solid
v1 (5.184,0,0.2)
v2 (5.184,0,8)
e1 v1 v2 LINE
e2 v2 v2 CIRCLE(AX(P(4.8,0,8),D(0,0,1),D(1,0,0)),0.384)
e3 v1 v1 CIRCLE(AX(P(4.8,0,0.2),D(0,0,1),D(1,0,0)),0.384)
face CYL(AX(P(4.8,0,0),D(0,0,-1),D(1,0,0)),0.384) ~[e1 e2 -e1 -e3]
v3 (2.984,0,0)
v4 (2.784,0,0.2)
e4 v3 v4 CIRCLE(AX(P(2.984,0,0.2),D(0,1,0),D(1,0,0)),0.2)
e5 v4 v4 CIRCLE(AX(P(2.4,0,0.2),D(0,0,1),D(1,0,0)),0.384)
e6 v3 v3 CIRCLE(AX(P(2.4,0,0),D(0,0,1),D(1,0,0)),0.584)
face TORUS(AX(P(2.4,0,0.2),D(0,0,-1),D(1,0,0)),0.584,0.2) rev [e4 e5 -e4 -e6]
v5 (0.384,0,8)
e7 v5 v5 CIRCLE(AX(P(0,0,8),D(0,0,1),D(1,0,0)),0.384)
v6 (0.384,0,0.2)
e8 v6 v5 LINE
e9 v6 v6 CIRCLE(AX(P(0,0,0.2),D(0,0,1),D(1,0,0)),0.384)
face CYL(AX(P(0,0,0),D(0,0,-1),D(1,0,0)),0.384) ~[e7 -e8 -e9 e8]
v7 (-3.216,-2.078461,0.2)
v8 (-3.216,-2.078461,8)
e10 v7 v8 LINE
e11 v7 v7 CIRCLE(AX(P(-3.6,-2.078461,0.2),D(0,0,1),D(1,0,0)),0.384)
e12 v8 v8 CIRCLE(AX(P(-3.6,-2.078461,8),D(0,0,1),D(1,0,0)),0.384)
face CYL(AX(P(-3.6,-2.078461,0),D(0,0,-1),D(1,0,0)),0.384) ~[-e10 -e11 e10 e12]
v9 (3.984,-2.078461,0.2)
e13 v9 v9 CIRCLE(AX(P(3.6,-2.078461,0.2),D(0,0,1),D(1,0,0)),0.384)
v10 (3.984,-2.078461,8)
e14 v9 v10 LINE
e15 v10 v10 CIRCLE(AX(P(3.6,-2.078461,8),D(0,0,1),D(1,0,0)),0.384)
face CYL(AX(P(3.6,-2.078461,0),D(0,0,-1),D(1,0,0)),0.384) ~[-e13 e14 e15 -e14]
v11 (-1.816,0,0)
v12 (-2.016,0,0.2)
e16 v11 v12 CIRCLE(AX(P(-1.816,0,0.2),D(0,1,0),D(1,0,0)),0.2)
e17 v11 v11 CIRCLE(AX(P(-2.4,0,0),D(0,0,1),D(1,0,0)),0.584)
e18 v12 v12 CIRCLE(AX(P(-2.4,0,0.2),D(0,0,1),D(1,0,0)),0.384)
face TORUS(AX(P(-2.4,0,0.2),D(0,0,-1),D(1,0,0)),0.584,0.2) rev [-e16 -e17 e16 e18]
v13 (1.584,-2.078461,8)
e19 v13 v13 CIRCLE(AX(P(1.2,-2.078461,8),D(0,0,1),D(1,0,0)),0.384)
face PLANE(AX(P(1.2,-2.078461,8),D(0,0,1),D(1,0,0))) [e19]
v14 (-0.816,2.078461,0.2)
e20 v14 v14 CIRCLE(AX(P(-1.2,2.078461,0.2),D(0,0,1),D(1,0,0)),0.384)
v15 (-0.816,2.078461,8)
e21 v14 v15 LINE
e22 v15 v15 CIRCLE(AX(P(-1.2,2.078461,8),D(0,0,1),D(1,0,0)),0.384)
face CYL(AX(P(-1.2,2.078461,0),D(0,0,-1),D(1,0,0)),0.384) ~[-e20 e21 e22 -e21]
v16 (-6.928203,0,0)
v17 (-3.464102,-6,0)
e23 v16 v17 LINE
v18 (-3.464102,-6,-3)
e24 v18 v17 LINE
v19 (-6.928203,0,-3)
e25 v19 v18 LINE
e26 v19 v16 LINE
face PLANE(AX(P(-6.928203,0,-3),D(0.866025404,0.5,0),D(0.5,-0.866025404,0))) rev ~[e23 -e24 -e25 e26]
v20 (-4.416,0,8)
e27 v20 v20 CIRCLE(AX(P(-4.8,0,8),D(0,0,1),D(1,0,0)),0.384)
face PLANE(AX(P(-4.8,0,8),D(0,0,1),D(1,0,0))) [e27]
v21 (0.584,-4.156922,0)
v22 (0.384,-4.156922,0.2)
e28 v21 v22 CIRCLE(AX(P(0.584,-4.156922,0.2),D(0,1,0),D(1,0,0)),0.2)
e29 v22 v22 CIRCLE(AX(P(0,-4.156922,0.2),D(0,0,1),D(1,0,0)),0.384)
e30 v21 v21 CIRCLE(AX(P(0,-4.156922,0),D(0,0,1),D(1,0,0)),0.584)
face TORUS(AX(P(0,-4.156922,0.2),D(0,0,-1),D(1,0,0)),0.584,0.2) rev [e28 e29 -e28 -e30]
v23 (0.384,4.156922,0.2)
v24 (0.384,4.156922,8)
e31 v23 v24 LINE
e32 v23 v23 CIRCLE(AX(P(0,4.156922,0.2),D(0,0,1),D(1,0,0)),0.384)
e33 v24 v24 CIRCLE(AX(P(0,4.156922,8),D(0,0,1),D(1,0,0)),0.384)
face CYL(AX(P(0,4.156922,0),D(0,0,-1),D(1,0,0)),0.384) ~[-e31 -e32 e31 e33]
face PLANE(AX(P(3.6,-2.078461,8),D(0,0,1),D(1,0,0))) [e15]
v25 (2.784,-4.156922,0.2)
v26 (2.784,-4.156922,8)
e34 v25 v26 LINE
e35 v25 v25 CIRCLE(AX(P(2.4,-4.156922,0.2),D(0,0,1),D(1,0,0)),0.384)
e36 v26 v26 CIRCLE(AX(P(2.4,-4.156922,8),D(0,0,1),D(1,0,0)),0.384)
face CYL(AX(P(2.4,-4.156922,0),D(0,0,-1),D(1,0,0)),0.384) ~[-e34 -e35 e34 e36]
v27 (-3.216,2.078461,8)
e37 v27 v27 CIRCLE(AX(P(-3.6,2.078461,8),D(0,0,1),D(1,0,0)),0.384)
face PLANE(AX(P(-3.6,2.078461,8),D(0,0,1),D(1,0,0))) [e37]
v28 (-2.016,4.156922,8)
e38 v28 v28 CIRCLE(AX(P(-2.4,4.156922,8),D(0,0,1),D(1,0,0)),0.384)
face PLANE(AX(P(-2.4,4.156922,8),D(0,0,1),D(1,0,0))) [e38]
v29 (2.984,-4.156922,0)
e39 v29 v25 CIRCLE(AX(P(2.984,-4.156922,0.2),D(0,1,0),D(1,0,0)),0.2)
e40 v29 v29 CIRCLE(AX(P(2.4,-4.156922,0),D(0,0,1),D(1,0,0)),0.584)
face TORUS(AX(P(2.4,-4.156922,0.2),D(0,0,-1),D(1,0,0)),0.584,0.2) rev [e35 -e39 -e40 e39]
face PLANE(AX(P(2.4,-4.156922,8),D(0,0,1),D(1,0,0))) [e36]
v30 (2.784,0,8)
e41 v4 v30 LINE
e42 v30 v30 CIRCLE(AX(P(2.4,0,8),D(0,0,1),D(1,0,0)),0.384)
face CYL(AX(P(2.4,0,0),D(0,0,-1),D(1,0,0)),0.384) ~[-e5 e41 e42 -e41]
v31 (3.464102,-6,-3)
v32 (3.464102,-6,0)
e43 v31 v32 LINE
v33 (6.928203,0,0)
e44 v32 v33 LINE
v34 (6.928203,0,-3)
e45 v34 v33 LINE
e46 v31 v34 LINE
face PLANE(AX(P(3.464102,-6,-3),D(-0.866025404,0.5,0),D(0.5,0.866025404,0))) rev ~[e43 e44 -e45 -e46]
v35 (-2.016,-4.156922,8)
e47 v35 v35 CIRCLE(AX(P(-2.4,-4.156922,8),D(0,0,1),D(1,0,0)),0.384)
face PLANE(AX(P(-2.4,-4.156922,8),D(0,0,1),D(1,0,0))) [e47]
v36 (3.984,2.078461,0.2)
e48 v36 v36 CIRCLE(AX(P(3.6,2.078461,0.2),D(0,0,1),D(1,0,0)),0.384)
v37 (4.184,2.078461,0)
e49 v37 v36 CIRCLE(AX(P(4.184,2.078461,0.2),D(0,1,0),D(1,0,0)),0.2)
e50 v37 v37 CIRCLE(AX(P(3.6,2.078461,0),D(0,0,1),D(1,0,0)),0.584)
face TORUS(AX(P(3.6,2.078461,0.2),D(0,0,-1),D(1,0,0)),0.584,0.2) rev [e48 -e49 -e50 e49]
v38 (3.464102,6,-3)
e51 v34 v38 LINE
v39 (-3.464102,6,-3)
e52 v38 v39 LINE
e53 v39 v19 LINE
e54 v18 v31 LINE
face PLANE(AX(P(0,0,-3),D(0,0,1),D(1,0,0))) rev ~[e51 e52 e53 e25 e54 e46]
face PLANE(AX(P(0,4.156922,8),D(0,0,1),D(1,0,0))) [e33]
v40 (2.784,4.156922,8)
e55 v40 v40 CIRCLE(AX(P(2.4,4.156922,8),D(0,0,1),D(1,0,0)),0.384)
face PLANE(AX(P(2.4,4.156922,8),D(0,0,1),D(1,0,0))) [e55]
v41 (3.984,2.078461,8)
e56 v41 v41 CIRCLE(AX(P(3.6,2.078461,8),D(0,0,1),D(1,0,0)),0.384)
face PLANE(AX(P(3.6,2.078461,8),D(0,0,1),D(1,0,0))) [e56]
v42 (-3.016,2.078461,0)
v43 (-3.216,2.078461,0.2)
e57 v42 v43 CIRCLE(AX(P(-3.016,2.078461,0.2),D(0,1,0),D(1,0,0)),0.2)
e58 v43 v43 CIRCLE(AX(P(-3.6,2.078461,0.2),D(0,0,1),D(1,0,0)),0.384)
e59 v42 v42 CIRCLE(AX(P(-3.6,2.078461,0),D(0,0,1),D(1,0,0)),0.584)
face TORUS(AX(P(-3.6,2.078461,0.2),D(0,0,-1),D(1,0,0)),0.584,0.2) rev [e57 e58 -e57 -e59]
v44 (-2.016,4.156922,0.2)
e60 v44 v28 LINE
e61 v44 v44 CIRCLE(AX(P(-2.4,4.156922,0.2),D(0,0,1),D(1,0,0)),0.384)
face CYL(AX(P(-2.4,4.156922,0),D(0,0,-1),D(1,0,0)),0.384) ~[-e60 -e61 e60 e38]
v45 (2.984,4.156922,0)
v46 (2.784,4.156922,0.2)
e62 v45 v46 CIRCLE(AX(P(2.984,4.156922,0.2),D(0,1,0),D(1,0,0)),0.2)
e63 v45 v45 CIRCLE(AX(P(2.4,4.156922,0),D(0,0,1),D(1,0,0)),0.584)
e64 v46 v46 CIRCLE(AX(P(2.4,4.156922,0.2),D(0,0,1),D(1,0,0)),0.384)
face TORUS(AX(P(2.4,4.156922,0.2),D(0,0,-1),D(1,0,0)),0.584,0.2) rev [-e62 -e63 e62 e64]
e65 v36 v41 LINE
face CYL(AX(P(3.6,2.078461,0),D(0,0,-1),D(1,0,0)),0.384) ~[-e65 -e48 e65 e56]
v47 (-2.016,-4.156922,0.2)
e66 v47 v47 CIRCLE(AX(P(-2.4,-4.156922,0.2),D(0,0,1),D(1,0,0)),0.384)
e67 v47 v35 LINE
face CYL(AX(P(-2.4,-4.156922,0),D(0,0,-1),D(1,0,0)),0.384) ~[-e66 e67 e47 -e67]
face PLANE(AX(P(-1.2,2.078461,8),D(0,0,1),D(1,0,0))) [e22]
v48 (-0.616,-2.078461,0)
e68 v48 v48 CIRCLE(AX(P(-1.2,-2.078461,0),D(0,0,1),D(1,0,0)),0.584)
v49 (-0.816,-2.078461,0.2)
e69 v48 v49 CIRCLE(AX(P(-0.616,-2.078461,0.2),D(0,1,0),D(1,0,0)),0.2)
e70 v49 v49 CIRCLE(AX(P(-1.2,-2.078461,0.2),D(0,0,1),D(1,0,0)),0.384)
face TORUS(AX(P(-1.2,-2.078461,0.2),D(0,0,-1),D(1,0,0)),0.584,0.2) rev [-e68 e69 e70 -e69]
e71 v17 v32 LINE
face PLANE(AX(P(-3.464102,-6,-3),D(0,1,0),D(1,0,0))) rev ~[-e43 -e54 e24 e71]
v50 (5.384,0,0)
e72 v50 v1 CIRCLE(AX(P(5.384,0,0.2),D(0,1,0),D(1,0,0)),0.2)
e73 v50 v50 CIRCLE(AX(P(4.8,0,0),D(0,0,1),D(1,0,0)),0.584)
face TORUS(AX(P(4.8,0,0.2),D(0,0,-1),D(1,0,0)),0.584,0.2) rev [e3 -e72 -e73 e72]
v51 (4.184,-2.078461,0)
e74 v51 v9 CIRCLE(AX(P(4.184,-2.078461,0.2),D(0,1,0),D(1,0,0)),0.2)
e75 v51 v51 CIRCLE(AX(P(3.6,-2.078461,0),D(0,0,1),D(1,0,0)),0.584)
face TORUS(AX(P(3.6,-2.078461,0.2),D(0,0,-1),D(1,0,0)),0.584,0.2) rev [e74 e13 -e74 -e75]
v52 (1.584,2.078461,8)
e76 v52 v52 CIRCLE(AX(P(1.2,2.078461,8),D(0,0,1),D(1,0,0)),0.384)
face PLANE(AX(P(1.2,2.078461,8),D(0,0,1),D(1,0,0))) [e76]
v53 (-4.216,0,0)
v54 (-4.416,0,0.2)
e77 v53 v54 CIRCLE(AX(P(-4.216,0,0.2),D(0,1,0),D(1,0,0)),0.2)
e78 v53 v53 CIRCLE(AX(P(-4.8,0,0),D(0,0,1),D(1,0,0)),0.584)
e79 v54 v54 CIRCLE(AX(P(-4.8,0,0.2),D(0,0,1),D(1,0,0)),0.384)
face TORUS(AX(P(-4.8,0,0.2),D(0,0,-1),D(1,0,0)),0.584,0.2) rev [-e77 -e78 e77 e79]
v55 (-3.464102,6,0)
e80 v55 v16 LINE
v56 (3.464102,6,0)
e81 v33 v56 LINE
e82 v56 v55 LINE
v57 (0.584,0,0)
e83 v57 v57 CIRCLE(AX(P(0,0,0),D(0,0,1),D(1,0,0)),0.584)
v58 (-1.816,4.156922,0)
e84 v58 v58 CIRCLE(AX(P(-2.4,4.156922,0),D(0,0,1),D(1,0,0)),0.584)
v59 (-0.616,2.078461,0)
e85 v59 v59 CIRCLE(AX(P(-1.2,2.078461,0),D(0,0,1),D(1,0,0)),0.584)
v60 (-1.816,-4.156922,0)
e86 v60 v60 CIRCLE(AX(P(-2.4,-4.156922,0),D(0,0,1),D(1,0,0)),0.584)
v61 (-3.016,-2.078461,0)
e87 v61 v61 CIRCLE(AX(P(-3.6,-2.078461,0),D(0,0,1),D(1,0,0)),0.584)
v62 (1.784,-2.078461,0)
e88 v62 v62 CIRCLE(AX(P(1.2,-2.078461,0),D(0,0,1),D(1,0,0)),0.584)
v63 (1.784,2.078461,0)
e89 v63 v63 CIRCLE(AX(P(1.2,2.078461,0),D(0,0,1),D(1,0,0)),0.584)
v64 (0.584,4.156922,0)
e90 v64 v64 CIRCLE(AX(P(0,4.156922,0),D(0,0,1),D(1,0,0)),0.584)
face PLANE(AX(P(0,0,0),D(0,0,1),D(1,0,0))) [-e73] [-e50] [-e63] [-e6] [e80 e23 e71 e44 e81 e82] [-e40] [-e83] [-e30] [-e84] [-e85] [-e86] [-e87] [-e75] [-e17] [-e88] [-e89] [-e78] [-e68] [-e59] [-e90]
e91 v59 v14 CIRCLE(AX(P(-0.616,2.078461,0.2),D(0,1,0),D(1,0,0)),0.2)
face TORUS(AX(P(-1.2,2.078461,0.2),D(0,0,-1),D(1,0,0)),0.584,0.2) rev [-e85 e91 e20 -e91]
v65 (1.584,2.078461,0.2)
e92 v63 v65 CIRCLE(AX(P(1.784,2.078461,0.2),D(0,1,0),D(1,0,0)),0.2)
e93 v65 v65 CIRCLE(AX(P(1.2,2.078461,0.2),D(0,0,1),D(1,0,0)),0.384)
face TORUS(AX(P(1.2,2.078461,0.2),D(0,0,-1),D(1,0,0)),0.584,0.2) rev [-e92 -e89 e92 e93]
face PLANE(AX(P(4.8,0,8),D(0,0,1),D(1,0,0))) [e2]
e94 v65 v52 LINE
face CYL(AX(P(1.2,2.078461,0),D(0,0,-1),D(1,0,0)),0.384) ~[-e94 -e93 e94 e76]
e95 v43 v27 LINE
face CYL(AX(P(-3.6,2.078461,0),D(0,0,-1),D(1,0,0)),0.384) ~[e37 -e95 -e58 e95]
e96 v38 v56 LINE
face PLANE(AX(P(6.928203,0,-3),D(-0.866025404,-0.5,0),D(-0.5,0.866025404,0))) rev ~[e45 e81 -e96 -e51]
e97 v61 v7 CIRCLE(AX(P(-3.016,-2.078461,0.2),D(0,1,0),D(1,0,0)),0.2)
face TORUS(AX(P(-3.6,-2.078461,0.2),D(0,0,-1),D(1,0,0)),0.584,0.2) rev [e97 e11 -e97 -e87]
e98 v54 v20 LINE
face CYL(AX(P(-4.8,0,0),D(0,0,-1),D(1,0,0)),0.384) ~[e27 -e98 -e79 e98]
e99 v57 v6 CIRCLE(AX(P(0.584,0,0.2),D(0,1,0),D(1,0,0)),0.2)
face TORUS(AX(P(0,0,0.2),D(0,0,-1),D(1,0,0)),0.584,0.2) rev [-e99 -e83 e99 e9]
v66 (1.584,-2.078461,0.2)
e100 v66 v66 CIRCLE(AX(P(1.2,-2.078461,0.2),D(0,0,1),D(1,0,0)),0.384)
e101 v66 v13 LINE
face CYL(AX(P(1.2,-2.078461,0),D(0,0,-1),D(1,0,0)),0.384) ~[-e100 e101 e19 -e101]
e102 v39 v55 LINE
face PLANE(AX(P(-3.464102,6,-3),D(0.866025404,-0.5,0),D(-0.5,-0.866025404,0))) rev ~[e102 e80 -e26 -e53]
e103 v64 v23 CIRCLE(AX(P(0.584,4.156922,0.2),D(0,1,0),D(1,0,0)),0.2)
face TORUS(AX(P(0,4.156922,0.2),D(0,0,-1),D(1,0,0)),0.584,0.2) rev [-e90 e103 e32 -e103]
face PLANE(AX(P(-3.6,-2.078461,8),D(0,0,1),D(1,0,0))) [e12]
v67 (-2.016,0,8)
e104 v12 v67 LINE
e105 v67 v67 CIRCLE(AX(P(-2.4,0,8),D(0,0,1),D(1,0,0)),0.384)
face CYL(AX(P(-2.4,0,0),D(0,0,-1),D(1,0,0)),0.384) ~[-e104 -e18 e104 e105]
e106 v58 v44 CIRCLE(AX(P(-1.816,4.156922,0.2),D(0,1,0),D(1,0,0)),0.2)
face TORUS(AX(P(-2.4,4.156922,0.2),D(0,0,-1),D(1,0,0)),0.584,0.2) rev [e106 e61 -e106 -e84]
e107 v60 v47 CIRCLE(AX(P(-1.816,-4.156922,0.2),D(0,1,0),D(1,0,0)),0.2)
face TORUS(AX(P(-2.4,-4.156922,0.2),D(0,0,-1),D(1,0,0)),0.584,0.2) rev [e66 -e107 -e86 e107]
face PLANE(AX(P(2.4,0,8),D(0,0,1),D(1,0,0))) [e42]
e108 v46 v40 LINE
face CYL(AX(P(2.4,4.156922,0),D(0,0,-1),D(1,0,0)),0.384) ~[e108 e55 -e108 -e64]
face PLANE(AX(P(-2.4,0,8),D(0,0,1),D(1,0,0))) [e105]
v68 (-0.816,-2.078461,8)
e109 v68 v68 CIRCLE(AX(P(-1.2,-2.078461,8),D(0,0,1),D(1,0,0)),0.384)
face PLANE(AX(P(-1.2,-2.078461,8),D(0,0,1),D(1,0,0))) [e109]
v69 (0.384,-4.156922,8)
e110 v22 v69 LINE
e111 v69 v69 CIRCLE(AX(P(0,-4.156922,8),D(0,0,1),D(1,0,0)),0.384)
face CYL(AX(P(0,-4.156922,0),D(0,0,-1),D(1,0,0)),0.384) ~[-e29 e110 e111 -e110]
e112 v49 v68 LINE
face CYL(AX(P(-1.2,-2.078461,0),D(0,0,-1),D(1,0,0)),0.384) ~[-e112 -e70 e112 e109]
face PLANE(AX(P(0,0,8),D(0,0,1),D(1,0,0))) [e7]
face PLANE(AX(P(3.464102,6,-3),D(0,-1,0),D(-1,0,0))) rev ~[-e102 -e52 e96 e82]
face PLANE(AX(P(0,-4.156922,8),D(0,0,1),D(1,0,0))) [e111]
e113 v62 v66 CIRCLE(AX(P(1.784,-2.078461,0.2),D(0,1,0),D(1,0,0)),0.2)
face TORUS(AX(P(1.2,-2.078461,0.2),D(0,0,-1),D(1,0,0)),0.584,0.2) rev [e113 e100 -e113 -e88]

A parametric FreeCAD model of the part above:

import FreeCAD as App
import Part
import Sketcher
Q = App.Units.Quantity


def edges_at(feature, points):
    """Names of the edges that pass closest to the given points."""
    edges = feature.Shape.Edges
    near = lambda p: min(range(len(edges)), key=lambda i: edges[i].distToShape(Part.Vertex(*p))[0])
    return sorted({f"Edge{near(p) + 1}" for p in points})

doc = App.newDocument("Part")
body = doc.addObject("PartDesign::Body", "Body")

sketch1 = body.newObject("Sketcher::SketchObject", "Sketch")
sketch1.AttachmentSupport = (doc.getObject("XY_Plane"), [""])
sketch1.MapMode = "FlatFace"
sketch1.addGeometry(Part.Circle(App.Vector(4.8, 0, 0), App.Vector(0, 0, 1), 0.38), False)
sketch1.addConstraint([
    Sketcher.Constraint("PointOnObject", 0, 3, -1),
    Sketcher.Constraint("Diameter", 0, Q("0.768 mm")),
    Sketcher.Constraint("DistanceX", -1, 1, 0, 3, Q("4.8 mm")),
])
pad1 = body.newObject("PartDesign::Pad", "Pad")
pad1.Profile = sketch1
pad1.Length = 8
body2 = doc.addObject("PartDesign::Body", "Body001")

sketch2 = body2.newObject("Sketcher::SketchObject", "Sketch001")
sketch2.AttachmentSupport = (doc.getObject("XY_Plane001"), [""])
sketch2.MapMode = "FlatFace"
sketch2.addGeometry(Part.Circle(App.Vector(3.6, 2.08, 0), App.Vector(0, 0, 1), 0.38), False)
sketch2.addConstraint([
    Sketcher.Constraint("Diameter", 0, Q("0.768 mm")),
    Sketcher.Constraint("DistanceX", -1, 1, 0, 3, Q("3.6 mm")),
    Sketcher.Constraint("DistanceY", -1, 1, 0, 3, Q("2.078461 mm")),
])
pad2 = body2.newObject("PartDesign::Pad", "Pad001")
pad2.Profile = sketch2
pad2.Length = 8
body3 = doc.addObject("PartDesign::Body", "Body002")

sketch3 = body3.newObject("Sketcher::SketchObject", "Sketch002")
sketch3.AttachmentSupport = (doc.getObject("XY_Plane002"), [""])
sketch3.MapMode = "FlatFace"
sketch3.addGeometry(Part.Circle(App.Vector(2.4, 4.16, 0), App.Vector(0, 0, 1), 0.38), False)
sketch3.addConstraint([
    Sketcher.Constraint("Diameter", 0, Q("0.768 mm")),
    Sketcher.Constraint("DistanceX", -1, 1, 0, 3, Q("2.4 mm")),
    Sketcher.Constraint("DistanceY", -1, 1, 0, 3, Q("4.156922 mm")),
])
pad3 = body3.newObject("PartDesign::Pad", "Pad002")
pad3.Profile = sketch3
pad3.Length = 8
body4 = doc.addObject("PartDesign::Body", "Body003")

sketch4 = body4.newObject("Sketcher::SketchObject", "Sketch003")
sketch4.AttachmentSupport = (doc.getObject("XY_Plane003"), [""])
sketch4.MapMode = "FlatFace"
sketch4.addGeometry(Part.Circle(App.Vector(0, 4.16, 0), App.Vector(0, 0, 1), 0.38), False)
sketch4.addConstraint([
    Sketcher.Constraint("PointOnObject", 0, 3, -2),
    Sketcher.Constraint("Diameter", 0, Q("0.768 mm")),
    Sketcher.Constraint("DistanceY", -1, 1, 0, 3, Q("4.156922 mm")),
])
pad4 = body4.newObject("PartDesign::Pad", "Pad003")
pad4.Profile = sketch4
pad4.Length = 8
body5 = doc.addObject("PartDesign::Body", "Body004")

sketch5 = body5.newObject("Sketcher::SketchObject", "Sketch004")
sketch5.AttachmentSupport = (doc.getObject("XY_Plane004"), [""])
sketch5.MapMode = "FlatFace"
sketch5.addGeometry(Part.Circle(App.Vector(-2.4, 4.16, 0), App.Vector(0, 0, 1), 0.38), False)
sketch5.addConstraint([
    Sketcher.Constraint("Diameter", 0, Q("0.768 mm")),
    Sketcher.Constraint("DistanceX", 0, 3, -1, 1, Q("2.4 mm")),
    Sketcher.Constraint("DistanceY", -1, 1, 0, 3, Q("4.156922 mm")),
])
pad5 = body5.newObject("PartDesign::Pad", "Pad004")
pad5.Profile = sketch5
pad5.Length = 8
body6 = doc.addObject("PartDesign::Body", "Body005")

sketch6 = body6.newObject("Sketcher::SketchObject", "Sketch005")
sketch6.AttachmentSupport = (doc.getObject("XY_Plane005"), [""])
sketch6.MapMode = "FlatFace"
sketch6.addGeometry(Part.Circle(App.Vector(-3.6, 2.08, 0), App.Vector(0, 0, 1), 0.38), False)
sketch6.addConstraint([
    Sketcher.Constraint("Diameter", 0, Q("0.768 mm")),
    Sketcher.Constraint("DistanceX", 0, 3, -1, 1, Q("3.6 mm")),
    Sketcher.Constraint("DistanceY", -1, 1, 0, 3, Q("2.078461 mm")),
])
pad6 = body6.newObject("PartDesign::Pad", "Pad005")
pad6.Profile = sketch6
pad6.Length = 8
body7 = doc.addObject("PartDesign::Body", "Body006")

sketch7 = body7.newObject("Sketcher::SketchObject", "Sketch006")
sketch7.AttachmentSupport = (doc.getObject("XY_Plane006"), [""])
sketch7.MapMode = "FlatFace"
sketch7.addGeometry(Part.Circle(App.Vector(-1.2, 2.08, 0), App.Vector(0, 0, 1), 0.38), False)
sketch7.addConstraint([
    Sketcher.Constraint("Diameter", 0, Q("0.768 mm")),
    Sketcher.Constraint("DistanceX", 0, 3, -1, 1, Q("1.2 mm")),
    Sketcher.Constraint("DistanceY", -1, 1, 0, 3, Q("2.078461 mm")),
])
pad7 = body7.newObject("PartDesign::Pad", "Pad006")
pad7.Profile = sketch7
pad7.Length = 8
body8 = doc.addObject("PartDesign::Body", "Body007")

sketch8 = body8.newObject("Sketcher::SketchObject", "Sketch007")
sketch8.AttachmentSupport = (doc.getObject("XY_Plane007"), [""])
sketch8.MapMode = "FlatFace"
sketch8.addGeometry(Part.Circle(App.Vector(1.2, 2.08, 0), App.Vector(0, 0, 1), 0.38), False)
sketch8.addConstraint([
    Sketcher.Constraint("Diameter", 0, Q("0.768 mm")),
    Sketcher.Constraint("DistanceX", -1, 1, 0, 3, Q("1.2 mm")),
    Sketcher.Constraint("DistanceY", -1, 1, 0, 3, Q("2.078461 mm")),
])
pad8 = body8.newObject("PartDesign::Pad", "Pad007")
pad8.Profile = sketch8
pad8.Length = 8
body9 = doc.addObject("PartDesign::Body", "Body008")

sketch9 = body9.newObject("Sketcher::SketchObject", "Sketch008")
sketch9.AttachmentSupport = (doc.getObject("XY_Plane008"), [""])
sketch9.MapMode = "FlatFace"
sketch9.addGeometry(Part.Circle(App.Vector(2.4, 0, 0), App.Vector(0, 0, 1), 0.38), False)
sketch9.addConstraint([
    Sketcher.Constraint("PointOnObject", 0, 3, -1),
    Sketcher.Constraint("Diameter", 0, Q("0.768 mm")),
    Sketcher.Constraint("DistanceX", -1, 1, 0, 3, Q("2.4 mm")),
])
pad9 = body9.newObject("PartDesign::Pad", "Pad008")
pad9.Profile = sketch9
pad9.Length = 8
body10 = doc.addObject("PartDesign::Body", "Body009")

sketch10 = body10.newObject("Sketcher::SketchObject", "Sketch009")
sketch10.AttachmentSupport = (doc.getObject("XY_Plane009"), [""])
sketch10.MapMode = "FlatFace"
sketch10.addGeometry(Part.Circle(App.Vector(3.6, -2.08, 0), App.Vector(0, 0, 1), 0.38), False)
sketch10.addConstraint([
    Sketcher.Constraint("Diameter", 0, Q("0.768 mm")),
    Sketcher.Constraint("DistanceX", -1, 1, 0, 3, Q("3.6 mm")),
    Sketcher.Constraint("DistanceY", 0, 3, -1, 1, Q("2.078461 mm")),
])
pad10 = body10.newObject("PartDesign::Pad", "Pad009")
pad10.Profile = sketch10
pad10.Length = 8
body11 = doc.addObject("PartDesign::Body", "Body010")

sketch11 = body11.newObject("Sketcher::SketchObject", "Sketch010")
sketch11.AttachmentSupport = (doc.getObject("XY_Plane010"), [""])
sketch11.MapMode = "FlatFace"
sketch11.addGeometry(Part.Circle(App.Vector(1.2, -2.08, 0), App.Vector(0, 0, 1), 0.38), False)
sketch11.addConstraint([
    Sketcher.Constraint("Diameter", 0, Q("0.768 mm")),
    Sketcher.Constraint("DistanceX", -1, 1, 0, 3, Q("1.2 mm")),
    Sketcher.Constraint("DistanceY", 0, 3, -1, 1, Q("2.078461 mm")),
])
pad11 = body11.newObject("PartDesign::Pad", "Pad010")
pad11.Profile = sketch11
pad11.Length = 8
body12 = doc.addObject("PartDesign::Body", "Body011")

sketch12 = body12.newObject("Sketcher::SketchObject", "Sketch011")
sketch12.AttachmentSupport = (doc.getObject("XY_Plane011"), [""])
sketch12.MapMode = "FlatFace"
sketch12.addGeometry(Part.Circle(App.Vector(0, 0, 0), App.Vector(0, 0, 1), 0.38), False)
sketch12.addConstraint([
    Sketcher.Constraint("Coincident", 0, 3, -1, 1),
    Sketcher.Constraint("Diameter", 0, Q("0.768 mm")),
])
pad12 = body12.newObject("PartDesign::Pad", "Pad011")
pad12.Profile = sketch12
pad12.Length = 8
body13 = doc.addObject("PartDesign::Body", "Body012")

sketch13 = body13.newObject("Sketcher::SketchObject", "Sketch012")
sketch13.AttachmentSupport = (doc.getObject("XY_Plane012"), [""])
sketch13.MapMode = "FlatFace"
sketch13.addGeometry(Part.Circle(App.Vector(-2.4, 0, 0), App.Vector(0, 0, 1), 0.38), False)
sketch13.addConstraint([
    Sketcher.Constraint("PointOnObject", 0, 3, -1),
    Sketcher.Constraint("Diameter", 0, Q("0.768 mm")),
    Sketcher.Constraint("DistanceX", 0, 3, -1, 1, Q("2.4 mm")),
])
pad13 = body13.newObject("PartDesign::Pad", "Pad012")
pad13.Profile = sketch13
pad13.Length = 8
body14 = doc.addObject("PartDesign::Body", "Body013")

sketch14 = body14.newObject("Sketcher::SketchObject", "Sketch013")
sketch14.AttachmentSupport = (doc.getObject("XY_Plane013"), [""])
sketch14.MapMode = "FlatFace"
sketch14.addGeometry(Part.Circle(App.Vector(-4.8, 0, 0), App.Vector(0, 0, 1), 0.38), False)
sketch14.addConstraint([
    Sketcher.Constraint("PointOnObject", 0, 3, -1),
    Sketcher.Constraint("Diameter", 0, Q("0.768 mm")),
    Sketcher.Constraint("DistanceX", 0, 3, -1, 1, Q("4.8 mm")),
])
pad14 = body14.newObject("PartDesign::Pad", "Pad013")
pad14.Profile = sketch14
pad14.Length = 8
body15 = doc.addObject("PartDesign::Body", "Body014")

sketch15 = body15.newObject("Sketcher::SketchObject", "Sketch014")
sketch15.AttachmentSupport = (doc.getObject("XY_Plane014"), [""])
sketch15.MapMode = "FlatFace"
sketch15.addGeometry(Part.Circle(App.Vector(-3.6, -2.08, 0), App.Vector(0, 0, 1), 0.38), False)
sketch15.addConstraint([
    Sketcher.Constraint("Diameter", 0, Q("0.768 mm")),
    Sketcher.Constraint("DistanceX", 0, 3, -1, 1, Q("3.6 mm")),
    Sketcher.Constraint("DistanceY", 0, 3, -1, 1, Q("2.078461 mm")),
])
pad15 = body15.newObject("PartDesign::Pad", "Pad014")
pad15.Profile = sketch15
pad15.Length = 8
body16 = doc.addObject("PartDesign::Body", "Body015")

sketch16 = body16.newObject("Sketcher::SketchObject", "Sketch015")
sketch16.AttachmentSupport = (doc.getObject("XY_Plane015"), [""])
sketch16.MapMode = "FlatFace"
sketch16.addGeometry(Part.Circle(App.Vector(-1.2, -2.08, 0), App.Vector(0, 0, 1), 0.38), False)
sketch16.addConstraint([
    Sketcher.Constraint("Diameter", 0, Q("0.768 mm")),
    Sketcher.Constraint("DistanceX", 0, 3, -1, 1, Q("1.2 mm")),
    Sketcher.Constraint("DistanceY", 0, 3, -1, 1, Q("2.078461 mm")),
])
pad16 = body16.newObject("PartDesign::Pad", "Pad015")
pad16.Profile = sketch16
pad16.Length = 8
body17 = doc.addObject("PartDesign::Body", "Body016")

sketch17 = body17.newObject("Sketcher::SketchObject", "Sketch016")
sketch17.AttachmentSupport = (doc.getObject("XY_Plane016"), [""])
sketch17.MapMode = "FlatFace"
sketch17.addGeometry(Part.Circle(App.Vector(2.4, -4.16, 0), App.Vector(0, 0, 1), 0.38), False)
sketch17.addConstraint([
    Sketcher.Constraint("Diameter", 0, Q("0.768 mm")),
    Sketcher.Constraint("DistanceX", -1, 1, 0, 3, Q("2.4 mm")),
    Sketcher.Constraint("DistanceY", 0, 3, -1, 1, Q("4.156922 mm")),
])
pad17 = body17.newObject("PartDesign::Pad", "Pad016")
pad17.Profile = sketch17
pad17.Length = 8
body18 = doc.addObject("PartDesign::Body", "Body017")

sketch18 = body18.newObject("Sketcher::SketchObject", "Sketch017")
sketch18.AttachmentSupport = (doc.getObject("XY_Plane017"), [""])
sketch18.MapMode = "FlatFace"
sketch18.addGeometry(Part.Circle(App.Vector(0, -4.16, 0), App.Vector(0, 0, 1), 0.38), False)
sketch18.addConstraint([
    Sketcher.Constraint("PointOnObject", 0, 3, -2),
    Sketcher.Constraint("Diameter", 0, Q("0.768 mm")),
    Sketcher.Constraint("DistanceY", 0, 3, -1, 1, Q("4.156922 mm")),
])
pad18 = body18.newObject("PartDesign::Pad", "Pad017")
pad18.Profile = sketch18
pad18.Length = 8
body19 = doc.addObject("PartDesign::Body", "Body018")

sketch19 = body19.newObject("Sketcher::SketchObject", "Sketch018")
sketch19.AttachmentSupport = (doc.getObject("XY_Plane018"), [""])
sketch19.MapMode = "FlatFace"
sketch19.addGeometry(Part.Circle(App.Vector(-2.4, -4.16, 0), App.Vector(0, 0, 1), 0.38), False)
sketch19.addConstraint([
    Sketcher.Constraint("Diameter", 0, Q("0.768 mm")),
    Sketcher.Constraint("DistanceX", 0, 3, -1, 1, Q("2.4 mm")),
    Sketcher.Constraint("DistanceY", 0, 3, -1, 1, Q("4.156922 mm")),
])
pad19 = body19.newObject("PartDesign::Pad", "Pad018")
pad19.Profile = sketch19
pad19.Length = 8
body.AllowCompound = True
doc.recompute()

boolean = body.newObject("PartDesign::Boolean", "Boolean")
boolean.Type = "Fuse"
boolean.addObjects([body2])
doc.recompute()

boolean2 = body.newObject("PartDesign::Boolean", "Boolean001")
boolean2.Type = "Fuse"
boolean2.addObjects([body3])
doc.recompute()

boolean3 = body.newObject("PartDesign::Boolean", "Boolean002")
boolean3.Type = "Fuse"
boolean3.addObjects([body4])
doc.recompute()

boolean4 = body.newObject("PartDesign::Boolean", "Boolean003")
boolean4.Type = "Fuse"
boolean4.addObjects([body5])
doc.recompute()

boolean5 = body.newObject("PartDesign::Boolean", "Boolean004")
boolean5.Type = "Fuse"
boolean5.addObjects([body6])
doc.recompute()

boolean6 = body.newObject("PartDesign::Boolean", "Boolean005")
boolean6.Type = "Fuse"
boolean6.addObjects([body7])
doc.recompute()

boolean7 = body.newObject("PartDesign::Boolean", "Boolean006")
boolean7.Type = "Fuse"
boolean7.addObjects([body8])
doc.recompute()

boolean8 = body.newObject("PartDesign::Boolean", "Boolean007")
boolean8.Type = "Fuse"
boolean8.addObjects([body9])
doc.recompute()

boolean9 = body.newObject("PartDesign::Boolean", "Boolean008")
boolean9.Type = "Fuse"
boolean9.addObjects([body10])
doc.recompute()

boolean10 = body.newObject("PartDesign::Boolean", "Boolean009")
boolean10.Type = "Fuse"
boolean10.addObjects([body11])
doc.recompute()

boolean11 = body.newObject("PartDesign::Boolean", "Boolean010")
boolean11.Type = "Fuse"
boolean11.addObjects([body12])
doc.recompute()

boolean12 = body.newObject("PartDesign::Boolean", "Boolean011")
boolean12.Type = "Fuse"
boolean12.addObjects([body13])
doc.recompute()

boolean13 = body.newObject("PartDesign::Boolean", "Boolean012")
boolean13.Type = "Fuse"
boolean13.addObjects([body14])
doc.recompute()

boolean14 = body.newObject("PartDesign::Boolean", "Boolean013")
boolean14.Type = "Fuse"
boolean14.addObjects([body15])
doc.recompute()

boolean15 = body.newObject("PartDesign::Boolean", "Boolean014")
boolean15.Type = "Fuse"
boolean15.addObjects([body16])
doc.recompute()

boolean16 = body.newObject("PartDesign::Boolean", "Boolean015")
boolean16.Type = "Fuse"
boolean16.addObjects([body17])
doc.recompute()

boolean17 = body.newObject("PartDesign::Boolean", "Boolean016")
boolean17.Type = "Fuse"
boolean17.addObjects([body18])
doc.recompute()

boolean18 = body.newObject("PartDesign::Boolean", "Boolean017")
boolean18.Type = "Fuse"
boolean18.addObjects([body19])

sketch20 = body.newObject("Sketcher::SketchObject", "Sketch019")
sketch20.AttachmentSupport = (doc.getObject("XY_Plane"), [""])
sketch20.MapMode = "FlatFace"
sketch20.AttachmentOffset = App.Placement(App.Vector(0, 0, -3), App.Rotation())
sketch20.addGeometry([
    Part.LineSegment(App.Vector(-3, -6, 0), App.Vector(3, -6, 0)),
    Part.LineSegment(App.Vector(3, -6, 0), App.Vector(7, 0, 0)),
    Part.LineSegment(App.Vector(7, 0, 0), App.Vector(3, 6, 0)),
    Part.LineSegment(App.Vector(3, 6, 0), App.Vector(-3, 6, 0)),
    Part.LineSegment(App.Vector(-3, 6, 0), App.Vector(-7, 0, 0)),
    Part.LineSegment(App.Vector(-7, 0, 0), App.Vector(-3, -6, 0)),
], False)
sketch20.addConstraint([
    Sketcher.Constraint("Coincident", 0, 2, 1, 1),
    Sketcher.Constraint("Coincident", 1, 2, 2, 1),
    Sketcher.Constraint("Coincident", 2, 2, 3, 1),
    Sketcher.Constraint("Coincident", 3, 2, 4, 1),
    Sketcher.Constraint("Coincident", 4, 2, 5, 1),
    Sketcher.Constraint("Coincident", 5, 2, 0, 1),
    Sketcher.Constraint("Horizontal", 0),
    Sketcher.Constraint("Horizontal", 3),
    Sketcher.Constraint("Symmetric", 0, 2, 3, 2, -1, 1),
    Sketcher.Constraint("Symmetric", 1, 2, 4, 2, -1, 1),
    Sketcher.Constraint("PointOnObject", 1, 2, -1),
    Sketcher.Constraint("Parallel", 2, 5),
    Sketcher.Constraint("Vertical", 0, 2, 2, 2),
    Sketcher.Constraint("Angle", 1, Q("60 deg")),
    Sketcher.Constraint("DistanceY", 0, 2, -1, 1, Q("6 mm")),
    Sketcher.Constraint("DistanceX", -1, 1, 0, 2, Q("3.464102 mm")),
])
pad20 = body.newObject("PartDesign::Pad", "Pad019")
pad20.Profile = sketch20
pad20.Length = 3
doc.recompute()

fillet = body.newObject("PartDesign::Fillet", "Fillet")
fillet.Base = (pad20, edges_at(pad20, [
    (3.216, 2.078, 0),
    (2.016, 4.157, 0),
    (-0.384, 4.157, 0),
    (-2.784, 4.157, 0),
    (-3.984, 2.078, 0),
    (-1.584, 2.078, 0),
    (0.816, 2.078, 0),
    (2.016, 0, 0),
    (3.216, -2.078, 0),
    (0.816, -2.078, 0),
    (-0.384, 0, 0),
    (-2.784, 0, 0),
    (-5.184, 0, 0),
    (-3.984, -2.078, 0),
    (4.416, 0, 0),
    (-1.584, -2.078, 0),
    (2.016, -4.157, 0),
    (-0.384, -4.157, 0),
    (-2.784, -4.157, 0),
]))
fillet.Radius = 0.2

doc.recompute()
